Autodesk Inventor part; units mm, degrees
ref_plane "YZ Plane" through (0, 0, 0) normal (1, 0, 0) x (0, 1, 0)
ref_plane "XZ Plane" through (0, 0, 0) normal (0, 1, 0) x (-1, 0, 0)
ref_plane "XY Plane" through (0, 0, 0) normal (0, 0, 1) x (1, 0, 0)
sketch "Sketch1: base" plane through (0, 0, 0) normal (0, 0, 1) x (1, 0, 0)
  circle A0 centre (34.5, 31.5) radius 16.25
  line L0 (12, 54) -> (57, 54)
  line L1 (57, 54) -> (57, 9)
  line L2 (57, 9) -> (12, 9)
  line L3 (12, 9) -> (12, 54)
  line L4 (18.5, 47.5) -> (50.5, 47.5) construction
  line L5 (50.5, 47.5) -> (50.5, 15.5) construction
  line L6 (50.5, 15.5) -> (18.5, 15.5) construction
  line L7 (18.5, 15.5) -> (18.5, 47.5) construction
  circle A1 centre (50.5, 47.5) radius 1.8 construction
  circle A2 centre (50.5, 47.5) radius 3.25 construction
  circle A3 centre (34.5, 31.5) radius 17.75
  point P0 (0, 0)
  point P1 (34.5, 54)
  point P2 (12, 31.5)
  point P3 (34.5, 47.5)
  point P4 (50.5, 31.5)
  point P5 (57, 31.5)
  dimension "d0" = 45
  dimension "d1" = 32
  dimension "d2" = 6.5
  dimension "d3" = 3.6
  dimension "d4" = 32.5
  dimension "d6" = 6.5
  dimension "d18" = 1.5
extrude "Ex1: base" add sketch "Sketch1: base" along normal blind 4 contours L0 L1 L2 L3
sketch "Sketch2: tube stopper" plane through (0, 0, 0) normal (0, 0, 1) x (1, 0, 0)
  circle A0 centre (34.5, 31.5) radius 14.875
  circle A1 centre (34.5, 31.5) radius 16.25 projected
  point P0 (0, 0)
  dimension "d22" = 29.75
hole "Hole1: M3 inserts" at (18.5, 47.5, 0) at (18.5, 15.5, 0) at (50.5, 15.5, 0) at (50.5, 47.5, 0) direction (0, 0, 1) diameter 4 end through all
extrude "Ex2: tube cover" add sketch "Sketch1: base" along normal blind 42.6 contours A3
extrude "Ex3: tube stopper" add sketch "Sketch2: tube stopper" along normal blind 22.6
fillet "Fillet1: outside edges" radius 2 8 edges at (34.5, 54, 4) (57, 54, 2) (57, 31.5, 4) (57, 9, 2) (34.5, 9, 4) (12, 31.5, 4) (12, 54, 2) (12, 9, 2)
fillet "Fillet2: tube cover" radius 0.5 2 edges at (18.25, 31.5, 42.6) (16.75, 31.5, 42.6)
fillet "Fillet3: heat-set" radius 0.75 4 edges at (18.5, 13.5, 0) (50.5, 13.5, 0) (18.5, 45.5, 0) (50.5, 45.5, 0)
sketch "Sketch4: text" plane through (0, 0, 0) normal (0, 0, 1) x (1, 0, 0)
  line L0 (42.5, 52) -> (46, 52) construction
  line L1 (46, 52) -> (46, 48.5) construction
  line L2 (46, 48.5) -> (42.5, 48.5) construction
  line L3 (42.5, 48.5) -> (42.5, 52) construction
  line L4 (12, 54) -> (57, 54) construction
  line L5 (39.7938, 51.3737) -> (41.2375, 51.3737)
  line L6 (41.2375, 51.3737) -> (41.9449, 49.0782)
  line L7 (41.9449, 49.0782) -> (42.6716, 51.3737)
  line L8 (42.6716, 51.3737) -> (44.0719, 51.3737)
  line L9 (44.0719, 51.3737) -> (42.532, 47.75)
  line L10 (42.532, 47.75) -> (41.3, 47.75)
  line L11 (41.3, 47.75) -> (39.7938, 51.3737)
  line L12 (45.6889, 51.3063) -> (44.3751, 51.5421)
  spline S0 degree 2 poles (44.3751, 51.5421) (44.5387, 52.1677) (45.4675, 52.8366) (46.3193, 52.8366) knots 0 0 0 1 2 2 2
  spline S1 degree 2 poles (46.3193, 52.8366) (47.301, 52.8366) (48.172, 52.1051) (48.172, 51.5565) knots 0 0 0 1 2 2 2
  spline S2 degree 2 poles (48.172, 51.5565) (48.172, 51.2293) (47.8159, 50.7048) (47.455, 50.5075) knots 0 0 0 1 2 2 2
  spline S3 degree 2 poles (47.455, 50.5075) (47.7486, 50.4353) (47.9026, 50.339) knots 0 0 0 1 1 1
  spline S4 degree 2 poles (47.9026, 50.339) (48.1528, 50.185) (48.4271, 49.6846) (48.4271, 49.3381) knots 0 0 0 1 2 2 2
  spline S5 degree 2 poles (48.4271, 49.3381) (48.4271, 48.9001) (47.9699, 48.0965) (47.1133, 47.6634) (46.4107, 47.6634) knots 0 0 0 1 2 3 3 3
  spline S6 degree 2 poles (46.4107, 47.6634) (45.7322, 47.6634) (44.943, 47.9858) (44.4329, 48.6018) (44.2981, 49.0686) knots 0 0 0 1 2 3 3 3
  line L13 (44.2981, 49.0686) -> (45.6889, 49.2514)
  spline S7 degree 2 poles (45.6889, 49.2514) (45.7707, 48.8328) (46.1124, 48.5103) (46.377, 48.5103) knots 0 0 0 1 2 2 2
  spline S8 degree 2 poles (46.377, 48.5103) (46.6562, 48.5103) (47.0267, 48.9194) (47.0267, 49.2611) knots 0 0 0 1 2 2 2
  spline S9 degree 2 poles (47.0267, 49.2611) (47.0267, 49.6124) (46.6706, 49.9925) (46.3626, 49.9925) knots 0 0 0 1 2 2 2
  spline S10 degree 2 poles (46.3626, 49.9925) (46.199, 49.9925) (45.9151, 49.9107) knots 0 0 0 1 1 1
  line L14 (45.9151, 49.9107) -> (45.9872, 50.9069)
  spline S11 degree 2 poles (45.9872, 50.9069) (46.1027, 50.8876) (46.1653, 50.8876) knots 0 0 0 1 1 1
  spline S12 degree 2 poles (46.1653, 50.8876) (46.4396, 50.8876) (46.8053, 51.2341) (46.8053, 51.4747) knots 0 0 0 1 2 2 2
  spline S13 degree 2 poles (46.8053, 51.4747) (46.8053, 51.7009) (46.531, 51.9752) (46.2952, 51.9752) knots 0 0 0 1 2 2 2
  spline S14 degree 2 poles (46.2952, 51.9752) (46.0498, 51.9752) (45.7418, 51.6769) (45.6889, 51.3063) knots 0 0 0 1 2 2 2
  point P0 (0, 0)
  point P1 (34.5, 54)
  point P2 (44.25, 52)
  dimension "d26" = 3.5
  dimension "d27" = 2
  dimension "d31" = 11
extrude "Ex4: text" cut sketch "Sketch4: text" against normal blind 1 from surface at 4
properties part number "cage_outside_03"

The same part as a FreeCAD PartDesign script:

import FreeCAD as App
import Part
import Sketcher
from FreeCAD import Vector
Q = App.Units.Quantity


def edges_at(feature, points):
    """Names of the edges that pass closest to the given points."""
    edges = feature.Shape.Edges
    near = lambda p: min(range(len(edges)), key=lambda i: edges[i].distToShape(Part.Vertex(*p))[0])
    return sorted({f"Edge{near(p) + 1}" for p in points})


def add_polygon(sketch, points):
    """Adds a closed chain of lines whose ends are joined by coincident constraints."""
    first, n = sketch.GeometryCount, len(points)
    for a, b in zip(points, points[1:] + points[:1]):
        sketch.addGeometry(Part.LineSegment(App.Vector(*a, 0), App.Vector(*b, 0)), False)
    for i in range(n):
        sketch.addConstraint(Sketcher.Constraint("Coincident", first + i, 2, first + (i + 1) % n, 1))

doc = App.newDocument("Part")
params = doc.addObject("Spreadsheet::Sheet", "Params")
for row, (alias, value) in enumerate([
    ("sketch1_width", "45 mm"),
    ("sketch1_diameter", "35.5 mm"),
    ("pad1_length", "4 mm"),
    ("sketch2_diameter", "4 mm"),
    ("hole_diameter", "4 mm"),
    ("sketch3_diameter", "32.5 mm"),
    ("sketch3_diameter2", "35.5 mm"),
    ("pad2_length", "42.6 mm"),
    ("sketch4_diameter", "29.75 mm"),
    ("sketch4_diameter2", "32.5 mm"),
    ("pad3_length", "22.6 mm"),
    ("fillet_radius", "2 mm"),
    ("fillet2_radius", "0.5 mm"),
    ("fillet3_radius", "0.75 mm"),
    ("pocket1_length", "1 mm"),
], start=1):
    params.set(f"A{row}", alias)
    params.set(f"B{row}", "=" + value)
    params.setAlias(f"B{row}", alias)

body = doc.addObject("PartDesign::Body", "Body")

# Sketch on XY plane
sketch1 = body.newObject("Sketcher::SketchObject", "Sketch")
sketch1.AttachmentSupport = (doc.getObject("XY_Plane"), [""])
sketch1.MapMode = "FlatFace"
add_polygon(sketch1, [(57, 54), (12, 54), (12, 9), (57, 9)])  # lines 0-3
sketch1.addGeometry(Part.Circle(Vector(34, 32, 0), Vector(0, 0, 1), 18), False)  # 4
sketch1.addConstraint([
    Sketcher.Constraint("Horizontal", 0),
    Sketcher.Constraint("Vertical", 1),
    Sketcher.Constraint("Horizontal", 2),
    Sketcher.Constraint("Vertical", 3),
    Sketcher.Constraint("Equal", 2, 1),
    Sketcher.Constraint("DistanceX", 0, 2, 0, 1, 45.0),
    Sketcher.Constraint("Diameter", 4, 35.5),
    Sketcher.Constraint("DistanceX", -1, 1, 0, 2, 12.0),
    Sketcher.Constraint("DistanceY", -1, 1, 0, 2, 54.0),
    Sketcher.Constraint("DistanceX", -1, 1, 4, 3, 34.5),
    Sketcher.Constraint("DistanceY", -1, 1, 4, 3, 31.5),
])
sketch1.setExpression("Constraints[9]", "Params.sketch1_width")
sketch1.setExpression("Constraints[10]", "Params.sketch1_diameter")
pad1 = body.newObject("PartDesign::Pad", "Pad")
pad1.Profile = sketch1
pad1.setExpression("Length", "Params.pad1_length")

# Sketch on XY plane
sketch2 = body.newObject("Sketcher::SketchObject", "Sketch001")
sketch2.AttachmentSupport = (doc.getObject("XY_Plane"), [""])
sketch2.MapMode = "FlatFace"
sketch2.addGeometry([
    Part.Circle(Vector(18.5, 47.5, 0), Vector(0, 0, 1), 2),
    Part.Circle(Vector(18.5, 15.5, 0), Vector(0, 0, 1), 2),
    Part.Circle(Vector(50.5, 15.5, 0), Vector(0, 0, 1), 2),
    Part.Circle(Vector(50.5, 47.5, 0), Vector(0, 0, 1), 2),
], False)
sketch2.addConstraint([
    Sketcher.Constraint("Equal", 0, 1),
    Sketcher.Constraint("Equal", 1, 2),
    Sketcher.Constraint("Equal", 2, 3),
    Sketcher.Constraint("Horizontal", 1, 3, 2, 3),
    Sketcher.Constraint("Horizontal", 0, 3, 3, 3),
    Sketcher.Constraint("Vertical", 0, 3, 1, 3),
    Sketcher.Constraint("Vertical", 2, 3, 3, 3),
    Sketcher.Constraint("Diameter", 0, 4.0),
    Sketcher.Constraint("DistanceY", 1, 3, 0, 3, 32.0),
    Sketcher.Constraint("DistanceX", 1, 3, 2, 3, 32.0),
    Sketcher.Constraint("DistanceX", -1, 1, 0, 3, 18.5),
    Sketcher.Constraint("DistanceY", -1, 1, 0, 3, 47.5),
])
sketch2.setExpression("Constraints[7]", "Params.sketch2_diameter")
doc.recompute()
hole = body.newObject("PartDesign::Hole", "Hole")
hole.Profile = sketch2
hole.ThreadType = "None"
hole.setExpression("Diameter", "Params.hole_diameter")
hole.DepthType = "ThroughAll"
hole.Reversed = True

# Sketch on XY plane
sketch3 = body.newObject("Sketcher::SketchObject", "Sketch002")
sketch3.AttachmentSupport = (doc.getObject("XY_Plane"), [""])
sketch3.MapMode = "FlatFace"
sketch3.addGeometry([
    Part.Circle(Vector(34, 32, 0), Vector(0, 0, 1), 18),
    Part.Circle(Vector(34, 32, 0), Vector(0, 0, 1), 16),
], False)
sketch3.addConstraint([
    Sketcher.Constraint("Coincident", 1, 3, 0, 3),
    Sketcher.Constraint("Diameter", 1, 32.5),
    Sketcher.Constraint("Diameter", 0, 35.5),
    Sketcher.Constraint("DistanceX", -1, 1, 0, 3, 34.5),
    Sketcher.Constraint("DistanceY", -1, 1, 0, 3, 31.5),
])
sketch3.setExpression("Constraints[1]", "Params.sketch3_diameter")
sketch3.setExpression("Constraints[2]", "Params.sketch3_diameter2")
pad2 = body.newObject("PartDesign::Pad", "Pad001")
pad2.Profile = sketch3
pad2.setExpression("Length", "Params.pad2_length")

# Sketch on XY plane
sketch4 = body.newObject("Sketcher::SketchObject", "Sketch003")
sketch4.AttachmentSupport = (doc.getObject("XY_Plane"), [""])
sketch4.MapMode = "FlatFace"
sketch4.addGeometry([
    Part.Circle(Vector(34, 32, 0), Vector(0, 0, 1), 16),
    Part.Circle(Vector(34, 32, 0), Vector(0, 0, 1), 15),
], False)
sketch4.addConstraint([
    Sketcher.Constraint("Coincident", 1, 3, 0, 3),
    Sketcher.Constraint("Diameter", 1, 29.75),
    Sketcher.Constraint("Diameter", 0, 32.5),
    Sketcher.Constraint("DistanceX", -1, 1, 0, 3, 34.5),
    Sketcher.Constraint("DistanceY", -1, 1, 0, 3, 31.5),
])
sketch4.setExpression("Constraints[1]", "Params.sketch4_diameter")
sketch4.setExpression("Constraints[2]", "Params.sketch4_diameter2")
pad3 = body.newObject("PartDesign::Pad", "Pad002")
pad3.Profile = sketch4
pad3.setExpression("Length", "Params.pad3_length")
doc.recompute()

fillet = body.newObject("PartDesign::Fillet", "Fillet")
fillet.Base = (pad3, edges_at(pad3, [
    (34.5, 54, 4),
    (57, 54, 2),
    (57, 31.5, 4),
    (57, 9, 2),
    (34.5, 9, 4),
    (12, 31.5, 4),
    (12, 54, 2),
    (12, 9, 2),
]))
fillet.setExpression("Radius", "Params.fillet_radius")
doc.recompute()

fillet2 = body.newObject("PartDesign::Fillet", "Fillet001")
fillet2.Base = (fillet, edges_at(fillet, [(18.25, 31.5, 42.6), (16.75, 31.5, 42.6)]))
fillet2.setExpression("Radius", "Params.fillet2_radius")
doc.recompute()

fillet3 = body.newObject("PartDesign::Fillet", "Fillet002")
fillet3.Base = (fillet2, edges_at(fillet2, [
    (18.5, 13.5, 0),
    (50.5, 13.5, 0),
    (18.5, 45.5, 0),
    (50.5, 45.5, 0),
]))
fillet3.setExpression("Radius", "Params.fillet3_radius")

# Sketch on XY plane
sketch5 = body.newObject("Sketcher::SketchObject", "Sketch004")
sketch5.AttachmentSupport = (doc.getObject("XY_Plane"), [""])
sketch5.MapMode = "FlatFace"
sketch5.AttachmentOffset = App.Placement(Vector(0, 0, 4), App.Rotation())
add_polygon(sketch5, [(41.2375, 51.3737), (39.7938, 51.3737), (41.3, 47.75), (42.532, 47.75), (44.0719, 51.3737), (42.6716, 51.3737), (41.9449, 49.0782)])  # lines 0-6
sketch5.addGeometry(Part.LineSegment(Vector(44.3751, 51.5421, 0), Vector(45.6889, 51.3063, 0)), False)  # 7
sketch5.addGeometry(Part.BSplineCurve([Vector(46.2952, 51.9752, 0), Vector(46.0498, 51.9752, 0), Vector(45.7418, 51.6769, 0), Vector(45.6889, 51.3063, 0)], [3, 1, 3], [0, 1, 2], False, 2, [1, 1, 1, 1], False), False)  # 8
sketch5.addGeometry(Part.BSplineCurve([Vector(46.8053, 51.4747, 0), Vector(46.8053, 51.7009, 0), Vector(46.531, 51.9752, 0), Vector(46.2952, 51.9752, 0)], [3, 1, 3], [0, 1, 2], False, 2, [1, 1, 1, 1], False), False)  # 9
sketch5.addGeometry(Part.BSplineCurve([Vector(46.1653, 50.8876, 0), Vector(46.4396, 50.8876, 0), Vector(46.8053, 51.2341, 0), Vector(46.8053, 51.4747, 0)], [3, 1, 3], [0, 1, 2], False, 2, [1, 1, 1, 1], False), False)  # 10
sketch5.addGeometry(Part.BSplineCurve([Vector(45.9872, 50.9069, 0), Vector(46.1027, 50.8876, 0), Vector(46.1653, 50.8876, 0)], [3, 3], [0, 1], False, 2, [1, 1, 1], False), False)  # 11
sketch5.addGeometry(Part.LineSegment(Vector(45.9872, 50.9069, 0), Vector(45.9151, 49.9107, 0)), False)  # 12
sketch5.addGeometry(Part.BSplineCurve([Vector(46.3626, 49.9925, 0), Vector(46.199, 49.9925, 0), Vector(45.9151, 49.9107, 0)], [3, 3], [0, 1], False, 2, [1, 1, 1], False), False)  # 13
sketch5.addGeometry(Part.BSplineCurve([Vector(47.0267, 49.2611, 0), Vector(47.0267, 49.6124, 0), Vector(46.6706, 49.9925, 0), Vector(46.3626, 49.9925, 0)], [3, 1, 3], [0, 1, 2], False, 2, [1, 1, 1, 1], False), False)  # 14
sketch5.addGeometry(Part.BSplineCurve([Vector(46.377, 48.5103, 0), Vector(46.6562, 48.5103, 0), Vector(47.0267, 48.9194, 0), Vector(47.0267, 49.2611, 0)], [3, 1, 3], [0, 1, 2], False, 2, [1, 1, 1, 1], False), False)  # 15
sketch5.addGeometry(Part.BSplineCurve([Vector(45.6889, 49.2514, 0), Vector(45.7707, 48.8328, 0), Vector(46.1124, 48.5103, 0), Vector(46.377, 48.5103, 0)], [3, 1, 3], [0, 1, 2], False, 2, [1, 1, 1, 1], False), False)  # 16
sketch5.addGeometry(Part.LineSegment(Vector(45.6889, 49.2514, 0), Vector(44.2981, 49.0686, 0)), False)  # 17
sketch5.addGeometry(Part.BSplineCurve([Vector(46.4107, 47.6634, 0), Vector(45.7322, 47.6634, 0), Vector(44.943, 47.9858, 0), Vector(44.4329, 48.6018, 0), Vector(44.2981, 49.0686, 0)], [3, 1, 1, 3], [0, 1, 2, 3], False, 2, [1, 1, 1, 1, 1], False), False)  # 18
sketch5.addGeometry(Part.BSplineCurve([Vector(48.4271, 49.3381, 0), Vector(48.4271, 48.9001, 0), Vector(47.9699, 48.0965, 0), Vector(47.1133, 47.6634, 0), Vector(46.4107, 47.6634, 0)], [3, 1, 1, 3], [0, 1, 2, 3], False, 2, [1, 1, 1, 1, 1], False), False)  # 19
sketch5.addGeometry(Part.BSplineCurve([Vector(47.9026, 50.339, 0), Vector(48.1528, 50.185, 0), Vector(48.4271, 49.6846, 0), Vector(48.4271, 49.3381, 0)], [3, 1, 3], [0, 1, 2], False, 2, [1, 1, 1, 1], False), False)  # 20
sketch5.addGeometry(Part.BSplineCurve([Vector(47.455, 50.5075, 0), Vector(47.7486, 50.4353, 0), Vector(47.9026, 50.339, 0)], [3, 3], [0, 1], False, 2, [1, 1, 1], False), False)  # 21
sketch5.addGeometry(Part.BSplineCurve([Vector(48.172, 51.5565, 0), Vector(48.172, 51.2293, 0), Vector(47.8159, 50.7048, 0), Vector(47.455, 50.5075, 0)], [3, 1, 3], [0, 1, 2], False, 2, [1, 1, 1, 1], False), False)  # 22
sketch5.addGeometry(Part.BSplineCurve([Vector(46.3193, 52.8366, 0), Vector(47.301, 52.8366, 0), Vector(48.172, 52.1051, 0), Vector(48.172, 51.5565, 0)], [3, 1, 3], [0, 1, 2], False, 2, [1, 1, 1, 1], False), False)  # 23
sketch5.addGeometry(Part.BSplineCurve([Vector(44.3751, 51.5421, 0), Vector(44.5387, 52.1677, 0), Vector(45.4675, 52.8366, 0), Vector(46.3193, 52.8366, 0)], [3, 1, 3], [0, 1, 2], False, 2, [1, 1, 1, 1], False), False)  # 24
sketch5.addConstraint([
    Sketcher.Constraint("Block", 8),
    Sketcher.Constraint("Block", 9),
    Sketcher.Constraint("Block", 10),
    Sketcher.Constraint("Block", 11),
    Sketcher.Constraint("Block", 13),
    Sketcher.Constraint("Block", 14),
    Sketcher.Constraint("Block", 15),
    Sketcher.Constraint("Block", 16),
    Sketcher.Constraint("Block", 18),
    Sketcher.Constraint("Block", 19),
    Sketcher.Constraint("Block", 20),
    Sketcher.Constraint("Block", 21),
    Sketcher.Constraint("Block", 22),
    Sketcher.Constraint("Block", 23),
    Sketcher.Constraint("Block", 24),
    Sketcher.Constraint("Coincident", 7, 2, 8, 2),
    Sketcher.Constraint("Coincident", 11, 1, 12, 1),
    Sketcher.Constraint("Coincident", 12, 2, 13, 2),
    Sketcher.Constraint("Coincident", 16, 1, 17, 1),
    Sketcher.Constraint("Coincident", 17, 2, 18, 2),
    Sketcher.Constraint("Coincident", 24, 1, 7, 1),
    Sketcher.Constraint("Horizontal", 0),
    Sketcher.Constraint("Horizontal", 2),
    Sketcher.Constraint("Horizontal", 4),
    Sketcher.Constraint("Horizontal", 0, 2, 3, 2),
    Sketcher.Constraint("DistanceX", -1, 1, 1, 2, 41.3),
    Sketcher.Constraint("Angle", 1, Q("-67.4297 deg")),
    Sketcher.Constraint("DistanceX", 2, 1, 2, 2, 1.232),
    Sketcher.Constraint("DistanceY", -1, 1, 1, 2, 47.75),
    Sketcher.Constraint("DistanceX", 2, 2, 3, 2, 1.54),
    Sketcher.Constraint("Distance", 6, 2.402),
    Sketcher.Constraint("DistanceX", 0, 2, 0, 1, 1.4437),
    Sketcher.Constraint("DistanceX", 4, 2, 4, 1, 1.4003),
    Sketcher.Constraint("DistanceX", -1, 1, 5, 2, 41.945),
    Sketcher.Constraint("DistanceX", 0, 2, 3, 2, 4.278),
])
pocket1 = body.newObject("PartDesign::Pocket", "Pocket")
pocket1.Profile = sketch5
pocket1.setExpression("Length", "Params.pocket1_length")

doc.recompute()
